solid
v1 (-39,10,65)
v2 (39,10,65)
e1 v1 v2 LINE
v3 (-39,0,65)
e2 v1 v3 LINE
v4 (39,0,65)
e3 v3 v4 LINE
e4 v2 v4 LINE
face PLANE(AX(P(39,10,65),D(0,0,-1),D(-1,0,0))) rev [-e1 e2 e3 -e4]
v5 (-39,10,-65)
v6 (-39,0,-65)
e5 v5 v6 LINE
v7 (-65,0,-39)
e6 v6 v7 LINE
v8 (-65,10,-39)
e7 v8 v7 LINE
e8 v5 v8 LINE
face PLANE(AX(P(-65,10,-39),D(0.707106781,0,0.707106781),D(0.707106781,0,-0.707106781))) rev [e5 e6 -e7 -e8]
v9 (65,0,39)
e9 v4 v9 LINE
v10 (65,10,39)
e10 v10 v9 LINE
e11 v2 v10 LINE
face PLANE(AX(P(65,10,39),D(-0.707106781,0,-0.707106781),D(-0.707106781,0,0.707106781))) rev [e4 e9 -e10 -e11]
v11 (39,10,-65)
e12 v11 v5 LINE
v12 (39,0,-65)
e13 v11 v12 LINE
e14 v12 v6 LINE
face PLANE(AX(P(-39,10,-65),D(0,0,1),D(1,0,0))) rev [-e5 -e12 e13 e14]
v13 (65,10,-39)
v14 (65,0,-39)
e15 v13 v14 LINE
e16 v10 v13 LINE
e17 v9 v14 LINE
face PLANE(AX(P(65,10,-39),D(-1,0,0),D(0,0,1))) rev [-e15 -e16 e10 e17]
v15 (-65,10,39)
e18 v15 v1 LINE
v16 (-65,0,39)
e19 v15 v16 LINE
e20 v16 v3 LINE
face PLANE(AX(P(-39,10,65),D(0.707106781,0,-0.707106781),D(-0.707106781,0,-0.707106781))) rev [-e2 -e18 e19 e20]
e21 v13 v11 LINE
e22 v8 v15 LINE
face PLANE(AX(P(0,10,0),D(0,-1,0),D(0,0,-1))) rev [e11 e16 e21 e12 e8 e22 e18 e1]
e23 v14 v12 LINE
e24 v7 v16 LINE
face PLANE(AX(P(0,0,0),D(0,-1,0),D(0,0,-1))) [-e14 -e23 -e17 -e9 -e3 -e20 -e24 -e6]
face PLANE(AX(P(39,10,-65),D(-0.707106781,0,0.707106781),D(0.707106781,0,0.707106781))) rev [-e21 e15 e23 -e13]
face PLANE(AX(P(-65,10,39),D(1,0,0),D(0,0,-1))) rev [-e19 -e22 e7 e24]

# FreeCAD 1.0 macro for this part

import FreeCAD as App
import Part
import Sketcher

V = App.Vector
Q = App.Units.Quantity

doc = App.newDocument("Part")
body = doc.addObject("PartDesign::Body", "Body")

# Sketch on XZ plane
sketch1 = doc.addObject("Sketcher::SketchObject", "Sketch")
body.addObject(sketch1)
sketch1.AttachmentSupport = (doc.XZ_Plane, [""])
sketch1.MapMode = "FlatFace"
sketch1.addGeometry([
    Part.LineSegment(V(-39, -65, 0), V(-65, -39, 0)),  # 0
    Part.LineSegment(V(-65, -39, 0), V(-65, 39, 0)),  # 1
    Part.LineSegment(V(-65, 39, 0), V(-39, 65, 0)),  # 2
    Part.LineSegment(V(-39, 65, 0), V(39, 65, 0)),  # 3
    Part.LineSegment(V(39, 65, 0), V(65, 39, 0)),  # 4
    Part.LineSegment(V(65, 39, 0), V(65, -39, 0)),  # 5
    Part.LineSegment(V(65, -39, 0), V(39, -65, 0)),  # 6
    Part.LineSegment(V(39, -65, 0), V(-39, -65, 0)),  # 7
], False)
sketch1.addConstraint([
    Sketcher.Constraint("Coincident", 0, 2, 1, 1),
    Sketcher.Constraint("Coincident", 1, 2, 2, 1),
    Sketcher.Constraint("Coincident", 2, 2, 3, 1),
    Sketcher.Constraint("Coincident", 3, 2, 4, 1),
    Sketcher.Constraint("Coincident", 4, 2, 5, 1),
    Sketcher.Constraint("Coincident", 5, 2, 6, 1),
    Sketcher.Constraint("Coincident", 6, 2, 7, 1),
    Sketcher.Constraint("Coincident", 7, 2, 0, 1),
    Sketcher.Constraint("Vertical", 1),
    Sketcher.Constraint("Horizontal", 3),
    Sketcher.Constraint("Vertical", 5),
    Sketcher.Constraint("Horizontal", 7),
    Sketcher.Constraint("Symmetric", 0, 2, 4, 2, -1, 1),
    Sketcher.Constraint("Symmetric", 2, 2, 6, 2, -1, 1),
    Sketcher.Constraint("Perpendicular", 0, 2),
    Sketcher.Constraint("Perpendicular", 2, 4),
    Sketcher.Constraint("Perpendicular", 4, 6),
    Sketcher.Constraint("Horizontal", 1, 2, 4, 2),
    Sketcher.Constraint("Vertical", 3, 2, 6, 2),
    Sketcher.Constraint("Equal", 7, 1),
    Sketcher.Constraint("DistanceX", 3, 1, 3, 2, Q("78 mm")),
    Sketcher.Constraint("DistanceX", 0, 2, -1, 1, Q("65 mm")),
])
pad1 = doc.addObject("PartDesign::Pad", "Pad")
body.addObject(pad1)
pad1.Profile = sketch1
pad1.Length = 10
pad1.Reversed = True

doc.recompute()
